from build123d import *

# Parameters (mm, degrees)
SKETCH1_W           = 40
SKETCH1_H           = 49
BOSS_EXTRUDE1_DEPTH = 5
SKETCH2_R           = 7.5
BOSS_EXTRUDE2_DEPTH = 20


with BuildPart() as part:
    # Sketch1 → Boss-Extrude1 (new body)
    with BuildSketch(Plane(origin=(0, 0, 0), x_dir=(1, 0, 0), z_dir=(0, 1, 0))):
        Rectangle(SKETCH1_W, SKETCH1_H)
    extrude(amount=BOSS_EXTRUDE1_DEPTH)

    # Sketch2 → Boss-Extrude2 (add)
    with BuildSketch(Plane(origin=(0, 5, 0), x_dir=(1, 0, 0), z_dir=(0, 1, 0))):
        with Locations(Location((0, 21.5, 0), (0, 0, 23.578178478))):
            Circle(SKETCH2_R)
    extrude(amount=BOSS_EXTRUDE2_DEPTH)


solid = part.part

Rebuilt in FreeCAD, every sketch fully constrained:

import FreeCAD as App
import Part
import Sketcher


def add_polygon(sketch, points):
    """Adds a closed chain of lines whose ends are joined by coincident constraints."""
    first, n = sketch.GeometryCount, len(points)
    for a, b in zip(points, points[1:] + points[:1]):
        sketch.addGeometry(Part.LineSegment(App.Vector(*a, 0), App.Vector(*b, 0)), False)
    for i in range(n):
        sketch.addConstraint(Sketcher.Constraint("Coincident", first + i, 2, first + (i + 1) % n, 1))

doc = App.newDocument("Part")
body = doc.addObject("PartDesign::Body", "Body")

# Sketch on XZ plane
sketch1 = body.newObject("Sketcher::SketchObject", "Sketch")
sketch1.AttachmentSupport = (doc.getObject("XZ_Plane"), [""])
sketch1.MapMode = "FlatFace"
add_polygon(sketch1, [(-20, -24), (-20, 24), (20, 24), (20, -24)])  # lines 0-3
sketch1.addConstraint([
    Sketcher.Constraint("Vertical", 0),
    Sketcher.Constraint("Horizontal", 1),
    Sketcher.Constraint("Vertical", 2),
    Sketcher.Constraint("Horizontal", 3),
    Sketcher.Constraint("Symmetric", 0, 2, 2, 2, -1, 1),
    Sketcher.Constraint("DistanceX", 1, 1, 1, 2, 40.0),
    Sketcher.Constraint("DistanceY", 0, 1, 0, 2, 49.0),
])
pad1 = body.newObject("PartDesign::Pad", "Pad")
pad1.Profile = sketch1
pad1.Length = 5
pad1.Reversed = True

# Sketch on XZ plane
sketch2 = body.newObject("Sketcher::SketchObject", "Sketch001")
sketch2.AttachmentSupport = (doc.getObject("XZ_Plane"), [""])
sketch2.MapMode = "FlatFace"
sketch2.AttachmentOffset = App.Placement(App.Vector(0, 0, -5), App.Rotation())
sketch2.addGeometry(Part.Circle(App.Vector(0, -22, 0), App.Vector(0, 0, 1), 8), False)
sketch2.addConstraint([
    Sketcher.Constraint("PointOnObject", 0, 3, -2),
    Sketcher.Constraint("Diameter", 0, 15.0),
    Sketcher.Constraint("DistanceY", 0, 3, -1, 1, 21.5),
])
pad2 = body.newObject("PartDesign::Pad", "Pad001")
pad2.Profile = sketch2
pad2.Length = 20
pad2.Reversed = True

doc.recompute()
